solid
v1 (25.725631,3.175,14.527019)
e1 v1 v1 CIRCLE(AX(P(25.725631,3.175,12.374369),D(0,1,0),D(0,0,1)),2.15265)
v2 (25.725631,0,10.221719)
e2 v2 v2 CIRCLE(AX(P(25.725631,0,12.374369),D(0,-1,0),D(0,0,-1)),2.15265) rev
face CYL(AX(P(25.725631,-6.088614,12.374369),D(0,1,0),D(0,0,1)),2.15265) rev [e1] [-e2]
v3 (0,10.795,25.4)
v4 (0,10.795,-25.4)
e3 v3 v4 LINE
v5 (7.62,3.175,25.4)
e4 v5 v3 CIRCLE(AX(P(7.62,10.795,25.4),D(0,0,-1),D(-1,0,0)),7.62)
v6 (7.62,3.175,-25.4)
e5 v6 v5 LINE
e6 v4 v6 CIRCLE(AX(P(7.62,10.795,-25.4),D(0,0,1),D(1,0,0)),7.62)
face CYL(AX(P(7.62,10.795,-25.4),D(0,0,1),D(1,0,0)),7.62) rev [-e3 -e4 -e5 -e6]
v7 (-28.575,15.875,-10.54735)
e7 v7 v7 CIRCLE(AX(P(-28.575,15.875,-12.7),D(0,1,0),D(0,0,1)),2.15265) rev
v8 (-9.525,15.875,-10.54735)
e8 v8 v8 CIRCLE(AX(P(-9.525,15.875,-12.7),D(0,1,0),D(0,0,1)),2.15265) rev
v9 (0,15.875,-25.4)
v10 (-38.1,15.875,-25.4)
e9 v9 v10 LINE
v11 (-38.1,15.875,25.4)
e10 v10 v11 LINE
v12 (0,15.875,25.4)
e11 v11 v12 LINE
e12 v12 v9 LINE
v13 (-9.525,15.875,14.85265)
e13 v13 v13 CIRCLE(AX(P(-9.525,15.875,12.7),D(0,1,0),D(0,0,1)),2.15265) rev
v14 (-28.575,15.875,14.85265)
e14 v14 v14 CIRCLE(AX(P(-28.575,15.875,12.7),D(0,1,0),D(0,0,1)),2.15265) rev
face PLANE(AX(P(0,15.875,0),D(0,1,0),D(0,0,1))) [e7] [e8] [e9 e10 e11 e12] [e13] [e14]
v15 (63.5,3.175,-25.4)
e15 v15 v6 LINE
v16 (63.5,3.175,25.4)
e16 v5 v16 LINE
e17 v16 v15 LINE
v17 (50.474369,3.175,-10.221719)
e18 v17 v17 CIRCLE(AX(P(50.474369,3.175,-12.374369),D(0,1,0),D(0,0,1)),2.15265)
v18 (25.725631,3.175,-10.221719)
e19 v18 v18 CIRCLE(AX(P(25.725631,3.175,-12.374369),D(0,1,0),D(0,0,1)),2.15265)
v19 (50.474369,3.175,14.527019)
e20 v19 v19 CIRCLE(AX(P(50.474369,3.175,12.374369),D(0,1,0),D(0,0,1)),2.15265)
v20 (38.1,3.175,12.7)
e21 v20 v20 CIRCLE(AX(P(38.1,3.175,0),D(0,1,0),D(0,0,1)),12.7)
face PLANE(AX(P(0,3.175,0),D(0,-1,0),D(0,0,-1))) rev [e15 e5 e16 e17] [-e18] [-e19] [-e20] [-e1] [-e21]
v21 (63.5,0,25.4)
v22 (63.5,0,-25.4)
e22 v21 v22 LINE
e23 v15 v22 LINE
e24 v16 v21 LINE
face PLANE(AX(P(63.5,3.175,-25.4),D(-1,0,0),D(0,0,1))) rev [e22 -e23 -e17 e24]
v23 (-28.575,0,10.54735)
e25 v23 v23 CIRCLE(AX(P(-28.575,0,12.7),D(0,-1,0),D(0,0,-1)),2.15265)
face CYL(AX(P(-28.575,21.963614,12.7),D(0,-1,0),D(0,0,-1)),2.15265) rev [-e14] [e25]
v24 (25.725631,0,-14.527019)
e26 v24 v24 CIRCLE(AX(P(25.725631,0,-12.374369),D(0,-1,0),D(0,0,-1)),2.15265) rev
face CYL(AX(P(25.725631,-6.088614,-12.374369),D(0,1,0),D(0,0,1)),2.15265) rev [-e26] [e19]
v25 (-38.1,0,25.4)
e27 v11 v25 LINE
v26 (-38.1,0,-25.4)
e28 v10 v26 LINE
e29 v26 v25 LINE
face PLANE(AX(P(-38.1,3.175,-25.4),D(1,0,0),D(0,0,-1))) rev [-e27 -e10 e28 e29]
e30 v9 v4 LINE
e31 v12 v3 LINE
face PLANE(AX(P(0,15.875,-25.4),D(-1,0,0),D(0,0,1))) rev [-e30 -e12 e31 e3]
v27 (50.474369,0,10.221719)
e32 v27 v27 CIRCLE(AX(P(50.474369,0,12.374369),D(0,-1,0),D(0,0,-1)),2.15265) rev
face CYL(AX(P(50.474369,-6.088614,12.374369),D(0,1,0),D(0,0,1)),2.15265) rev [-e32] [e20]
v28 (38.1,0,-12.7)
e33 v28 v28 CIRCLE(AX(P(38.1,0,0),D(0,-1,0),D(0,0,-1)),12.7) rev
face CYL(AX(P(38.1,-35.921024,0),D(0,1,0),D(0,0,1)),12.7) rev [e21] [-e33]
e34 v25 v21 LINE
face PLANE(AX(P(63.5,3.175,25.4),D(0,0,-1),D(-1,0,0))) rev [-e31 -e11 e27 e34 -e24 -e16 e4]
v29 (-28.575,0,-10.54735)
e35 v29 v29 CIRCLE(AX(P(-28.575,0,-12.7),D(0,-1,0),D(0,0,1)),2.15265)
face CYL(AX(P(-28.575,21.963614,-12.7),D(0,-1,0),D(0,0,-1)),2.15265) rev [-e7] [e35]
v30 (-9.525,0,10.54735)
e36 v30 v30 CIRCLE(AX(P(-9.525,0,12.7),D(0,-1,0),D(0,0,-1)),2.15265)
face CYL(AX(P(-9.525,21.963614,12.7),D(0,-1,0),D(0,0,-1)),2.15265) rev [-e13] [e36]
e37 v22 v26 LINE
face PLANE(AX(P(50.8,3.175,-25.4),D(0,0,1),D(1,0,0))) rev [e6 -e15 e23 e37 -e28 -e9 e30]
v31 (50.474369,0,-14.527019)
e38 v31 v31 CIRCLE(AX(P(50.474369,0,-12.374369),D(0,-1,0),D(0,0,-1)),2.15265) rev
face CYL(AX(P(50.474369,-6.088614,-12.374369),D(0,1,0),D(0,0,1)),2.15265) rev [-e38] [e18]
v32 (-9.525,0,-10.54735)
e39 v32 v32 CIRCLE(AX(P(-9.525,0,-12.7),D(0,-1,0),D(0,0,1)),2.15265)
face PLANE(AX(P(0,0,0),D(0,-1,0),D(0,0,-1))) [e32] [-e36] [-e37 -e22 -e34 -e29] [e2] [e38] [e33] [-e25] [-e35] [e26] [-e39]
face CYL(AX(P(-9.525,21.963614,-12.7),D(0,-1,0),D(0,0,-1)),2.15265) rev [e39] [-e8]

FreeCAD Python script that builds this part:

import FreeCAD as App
import Part
import Sketcher
from FreeCAD import Vector
Q = App.Units.Quantity


def edges_at(feature, points):
    """Names of the edges that pass closest to the given points."""
    edges = feature.Shape.Edges
    near = lambda p: min(range(len(edges)), key=lambda i: edges[i].distToShape(Part.Vertex(*p))[0])
    return sorted({f"Edge{near(p) + 1}" for p in points})

doc = App.newDocument("Part")
params = doc.addObject("Spreadsheet::Sheet", "Params")
for row, (alias, value) in enumerate([
    ("sketch1_width", "4 in"),
    ("sketch1_height", "2 in"),
    ("pad1_length", "0.125 in"),
    ("sketch2_height", "2 in"),
    ("sketch2_width", "1.5 in"),
    ("pad2_length", "0.5 in"),
    ("fillet_radius", "0.3 in"),
    ("pocket1_length", "0.125 in"),
    ("sketch4_diameter", "1 in"),
    ("pocket2_length", "0.125 in"),
    ("pocket3_length", "0.625 in"),
], start=1):
    params.set(f"A{row}", alias)
    params.set(f"B{row}", "=" + value)
    params.setAlias(f"B{row}", alias)

body = doc.addObject("PartDesign::Body", "Body")

sketch1 = body.newObject("Sketcher::SketchObject", "Sketch")
sketch1.AttachmentSupport = (doc.getObject("XZ_Plane"), [""])
sketch1.MapMode = "FlatFace"
sketch1.addGeometry([
    Part.LineSegment(Vector(64, -25, 0), Vector(-38, -25, 0)),
    Part.LineSegment(Vector(-38, -25, 0), Vector(-38, 25, 0)),
    Part.LineSegment(Vector(-38, 25, 0), Vector(64, 25, 0)),
    Part.LineSegment(Vector(64, 25, 0), Vector(64, -25, 0)),
], False)
sketch1.addConstraint([
    Sketcher.Constraint("Coincident", 0, 2, 1, 1),
    Sketcher.Constraint("Coincident", 1, 2, 2, 1),
    Sketcher.Constraint("Coincident", 2, 2, 3, 1),
    Sketcher.Constraint("Coincident", 3, 2, 0, 1),
    Sketcher.Constraint("Horizontal", 0),
    Sketcher.Constraint("Vertical", 1),
    Sketcher.Constraint("Horizontal", 2),
    Sketcher.Constraint("Vertical", 3),
    Sketcher.Constraint("DistanceX", 0, 2, 0, 1, Q("4 in")),
    Sketcher.Constraint("DistanceY", 1, 1, 1, 2, Q("2 in")),
    Sketcher.Constraint("DistanceY", 0, 2, -1, 1, Q("1 in")),
    Sketcher.Constraint("DistanceX", 0, 2, -1, 1, Q("1.5 in")),
])
sketch1.setExpression("Constraints[8]", "Params.sketch1_width")
sketch1.setExpression("Constraints[9]", "Params.sketch1_height")
pad1 = body.newObject("PartDesign::Pad", "Pad")
pad1.Profile = sketch1
pad1.setExpression("Length", "Params.pad1_length")
pad1.Reversed = True

sketch2 = body.newObject("Sketcher::SketchObject", "Sketch001")
sketch2.AttachmentSupport = (doc.getObject("XZ_Plane"), [""])
sketch2.MapMode = "FlatFace"
sketch2.AttachmentOffset = App.Placement(Vector(0, 0, -0.125 * 25.4), App.Rotation())
sketch2.addGeometry([
    Part.LineSegment(Vector(-38, -25, 0), Vector(-38, 25, 0)),
    Part.LineSegment(Vector(-38, 25, 0), Vector(0, 25, 0)),
    Part.LineSegment(Vector(0, 25, 0), Vector(0, -25, 0)),
    Part.LineSegment(Vector(0, -25, 0), Vector(-38, -25, 0)),
], False)
sketch2.addConstraint([
    Sketcher.Constraint("Coincident", 0, 2, 1, 1),
    Sketcher.Constraint("Coincident", 1, 2, 2, 1),
    Sketcher.Constraint("Coincident", 2, 2, 3, 1),
    Sketcher.Constraint("Coincident", 3, 2, 0, 1),
    Sketcher.Constraint("Vertical", 0),
    Sketcher.Constraint("Horizontal", 1),
    Sketcher.Constraint("Vertical", 2),
    Sketcher.Constraint("Horizontal", 3),
    Sketcher.Constraint("Symmetric", 1, 2, 2, 2, -1, 1),
    Sketcher.Constraint("DistanceY", 0, 1, 0, 2, Q("2 in")),
    Sketcher.Constraint("DistanceX", 1, 1, 1, 2, Q("1.5 in")),
])
sketch2.setExpression("Constraints[9]", "Params.sketch2_height")
sketch2.setExpression("Constraints[10]", "Params.sketch2_width")
pad2 = body.newObject("PartDesign::Pad", "Pad001")
pad2.Profile = sketch2
pad2.setExpression("Length", "Params.pad2_length")
pad2.Reversed = True
doc.recompute()

fillet = body.newObject("PartDesign::Fillet", "Fillet")
fillet.Base = (pad2, edges_at(pad2, [(0, 3.175, 0)]))
fillet.setExpression("Radius", "Params.fillet_radius")

sketch3 = body.newObject("Sketcher::SketchObject", "Sketch002")
sketch3.AttachmentSupport = (doc.getObject("XZ_Plane"), [""])
sketch3.MapMode = "FlatFace"
sketch3.AttachmentOffset = App.Placement(Vector(0, 0, -0.125 * 25.4), App.Rotation())
sketch3.addGeometry([
    Part.Circle(Vector(50.5, -12.4, 0), Vector(0, 0, 1), 2.2),
    Part.Circle(Vector(50.5, 12.4, 0), Vector(0, 0, 1), 2.2),
    Part.Circle(Vector(25.7, 12.4, 0), Vector(0, 0, 1), 2.2),
    Part.Circle(Vector(25.7, -12.4, 0), Vector(0, 0, 1), 2.2),
], False)
sketch3.addConstraint([
    Sketcher.Constraint("Equal", 0, 1),
    Sketcher.Constraint("Equal", 1, 2),
    Sketcher.Constraint("Equal", 2, 3),
    Sketcher.Constraint("Symmetric", 0, 3, 1, 3, -1),
    Sketcher.Constraint("Symmetric", 2, 3, 3, 3, -1),
    Sketcher.Constraint("Horizontal", 1, 3, 2, 3),
    Sketcher.Constraint("Diameter", 0, Q("0.1695 in")),
    Sketcher.Constraint("DistanceX", -1, 1, 0, 3, 50.474369),
    Sketcher.Constraint("DistanceY", 0, 3, -1, 1, 12.374369),
    Sketcher.Constraint("DistanceX", -1, 1, 2, 3, 25.725631),
])
pocket1 = body.newObject("PartDesign::Pocket", "Pocket")
pocket1.Profile = sketch3
pocket1.setExpression("Length", "Params.pocket1_length")
pocket1.Reversed = True

sketch4 = body.newObject("Sketcher::SketchObject", "Sketch003")
sketch4.AttachmentSupport = (doc.getObject("XZ_Plane"), [""])
sketch4.MapMode = "FlatFace"
sketch4.AttachmentOffset = App.Placement(Vector(0, 0, -0.125 * 25.4), App.Rotation())
sketch4.addGeometry(Part.Circle(Vector(38, 0, 0), Vector(0, 0, 1), 13), False)
sketch4.addConstraint([
    Sketcher.Constraint("PointOnObject", 0, 3, -1),
    Sketcher.Constraint("Diameter", 0, Q("1 in")),
    Sketcher.Constraint("DistanceX", -1, 1, 0, 3, Q("1.5 in")),
])
sketch4.setExpression("Constraints[1]", "Params.sketch4_diameter")
pocket2 = body.newObject("PartDesign::Pocket", "Pocket001")
pocket2.Profile = sketch4
pocket2.setExpression("Length", "Params.pocket2_length")
pocket2.Reversed = True

sketch5 = body.newObject("Sketcher::SketchObject", "Sketch004")
sketch5.AttachmentSupport = (doc.getObject("XZ_Plane"), [""])
sketch5.MapMode = "FlatFace"
sketch5.addGeometry([
    Part.Circle(Vector(-9.5, -12.7, 0), Vector(0, 0, 1), 2.2),
    Part.Circle(Vector(-28.6, -12.7, 0), Vector(0, 0, 1), 2.2),
    Part.Circle(Vector(-9.5, 12.7, 0), Vector(0, 0, 1), 2.2),
    Part.Circle(Vector(-28.6, 12.7, 0), Vector(0, 0, 1), 2.2),
], False)
sketch5.addConstraint([
    Sketcher.Constraint("Equal", 0, 1),
    Sketcher.Constraint("Equal", 1, 2),
    Sketcher.Constraint("Equal", 2, 3),
    Sketcher.Constraint("Symmetric", 0, 3, 2, 3, -1),
    Sketcher.Constraint("Symmetric", 1, 3, 3, 3, -1),
    Sketcher.Constraint("Horizontal", 0, 3, 1, 3),
    Sketcher.Constraint("DistanceY", 0, 3, 2, 3, Q("1 in")),
    Sketcher.Constraint("Diameter", 0, Q("0.1695 in")),
    Sketcher.Constraint("DistanceX", 1, 3, 0, 3, Q("0.75 in")),
    Sketcher.Constraint("DistanceX", 0, 3, -1, 1, Q("0.375 in")),
])
pocket3 = body.newObject("PartDesign::Pocket", "Pocket002")
pocket3.Profile = sketch5
pocket3.setExpression("Length", "Params.pocket3_length")

doc.recompute()
